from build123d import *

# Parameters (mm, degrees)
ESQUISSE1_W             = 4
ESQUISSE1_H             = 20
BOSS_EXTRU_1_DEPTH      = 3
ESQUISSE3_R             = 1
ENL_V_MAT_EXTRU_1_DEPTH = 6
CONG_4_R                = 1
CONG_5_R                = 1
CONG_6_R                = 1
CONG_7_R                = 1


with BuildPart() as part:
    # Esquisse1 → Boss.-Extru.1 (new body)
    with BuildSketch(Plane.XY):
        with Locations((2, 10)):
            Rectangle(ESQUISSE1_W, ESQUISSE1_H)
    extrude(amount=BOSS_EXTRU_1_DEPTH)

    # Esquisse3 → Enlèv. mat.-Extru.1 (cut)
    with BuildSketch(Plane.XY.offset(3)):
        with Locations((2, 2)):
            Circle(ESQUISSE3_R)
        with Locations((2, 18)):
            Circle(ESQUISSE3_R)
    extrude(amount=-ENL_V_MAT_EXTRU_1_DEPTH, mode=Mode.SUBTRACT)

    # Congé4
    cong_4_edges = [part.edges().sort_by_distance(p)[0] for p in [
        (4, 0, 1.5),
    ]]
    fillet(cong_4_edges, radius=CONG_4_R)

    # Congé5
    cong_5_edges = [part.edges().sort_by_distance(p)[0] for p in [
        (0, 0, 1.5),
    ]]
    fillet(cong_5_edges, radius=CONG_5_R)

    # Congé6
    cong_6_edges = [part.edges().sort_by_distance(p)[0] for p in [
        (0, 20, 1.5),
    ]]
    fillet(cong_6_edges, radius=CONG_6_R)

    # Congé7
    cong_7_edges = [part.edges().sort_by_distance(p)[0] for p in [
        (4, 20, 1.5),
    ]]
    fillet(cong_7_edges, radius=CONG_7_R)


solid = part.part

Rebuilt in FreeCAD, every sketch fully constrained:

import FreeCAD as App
import Part
import Sketcher


def edges_at(feature, points):
    """Names of the edges that pass closest to the given points."""
    edges = feature.Shape.Edges
    near = lambda p: min(range(len(edges)), key=lambda i: edges[i].distToShape(Part.Vertex(*p))[0])
    return sorted({f"Edge{near(p) + 1}" for p in points})

doc = App.newDocument("Part")
params = doc.addObject("Spreadsheet::Sheet", "Params")
for row, (alias, value) in enumerate([
    ("sketch1_width", "4 mm"),
    ("sketch1_height", "20 mm"),
    ("pad1_length", "3 mm"),
    ("sketch2_diameter", "2 mm"),
    ("pocket1_length", "6 mm"),
    ("fillet_radius", "1 mm"),
    ("fillet2_radius", "1 mm"),
    ("fillet3_radius", "1 mm"),
    ("fillet4_radius", "1 mm"),
], start=1):
    params.set(f"A{row}", alias)
    params.set(f"B{row}", "=" + value)
    params.setAlias(f"B{row}", alias)

body = doc.addObject("PartDesign::Body", "Body")

sketch1 = doc.addObject("Sketcher::SketchObject", "Sketch")
body.addObject(sketch1)
sketch1.AttachmentSupport = (doc.XY_Plane, [""])
sketch1.MapMode = "FlatFace"
sketch1.addGeometry([
    Part.LineSegment(App.Vector(0, 20, 0), App.Vector(0, 0, 0)),
    Part.LineSegment(App.Vector(0, 0, 0), App.Vector(4, 0, 0)),
    Part.LineSegment(App.Vector(4, 0, 0), App.Vector(4, 20, 0)),
    Part.LineSegment(App.Vector(4, 20, 0), App.Vector(0, 20, 0)),
], False)
sketch1.addConstraint([
    Sketcher.Constraint("Coincident", 0, 2, 1, 1),
    Sketcher.Constraint("Coincident", 1, 2, 2, 1),
    Sketcher.Constraint("Coincident", 2, 2, 3, 1),
    Sketcher.Constraint("Coincident", 3, 2, 0, 1),
    Sketcher.Constraint("Vertical", 0),
    Sketcher.Constraint("Horizontal", 1),
    Sketcher.Constraint("Vertical", 2),
    Sketcher.Constraint("Horizontal", 3),
    Sketcher.Constraint("Coincident", 0, 2, -1, 1),
    Sketcher.Constraint("DistanceX", 1, 1, 1, 2, 4.0),
    Sketcher.Constraint("DistanceY", 0, 2, 0, 1, 20.0),
])
sketch1.setExpression("Constraints[9]", "Params.sketch1_width")
sketch1.setExpression("Constraints[10]", "Params.sketch1_height")
pad1 = doc.addObject("PartDesign::Pad", "Pad")
body.addObject(pad1)
pad1.Profile = sketch1
pad1.setExpression("Length", "Params.pad1_length")

sketch2 = doc.addObject("Sketcher::SketchObject", "Sketch001")
body.addObject(sketch2)
sketch2.AttachmentSupport = (doc.XY_Plane, [""])
sketch2.MapMode = "FlatFace"
sketch2.AttachmentOffset = App.Placement(App.Vector(0, 0, 3), App.Rotation())
sketch2.addGeometry([
    Part.Circle(App.Vector(2, 2, 0), App.Vector(0, 0, 1), 1),
    Part.Circle(App.Vector(2, 18, 0), App.Vector(0, 0, 1), 1),
], False)
sketch2.addConstraint([
    Sketcher.Constraint("Equal", 0, 1),
    Sketcher.Constraint("Vertical", 0, 3, 1, 3),
    Sketcher.Constraint("Diameter", 0, 2.0),
    Sketcher.Constraint("DistanceX", -1, 1, 0, 3, 2.0),
    Sketcher.Constraint("DistanceY", -1, 1, 0, 3, 2.0),
    Sketcher.Constraint("DistanceY", -1, 1, 1, 3, 18.0),
])
sketch2.setExpression("Constraints[2]", "Params.sketch2_diameter")
pocket1 = doc.addObject("PartDesign::Pocket", "Pocket")
body.addObject(pocket1)
pocket1.Profile = sketch2
pocket1.setExpression("Length", "Params.pocket1_length")
doc.recompute()

fillet = doc.addObject("PartDesign::Fillet", "Fillet")
body.addObject(fillet)
fillet.Base = (pocket1, edges_at(pocket1, [(4, 0, 1.5)]))
fillet.setExpression("Radius", "Params.fillet_radius")
doc.recompute()

fillet2 = doc.addObject("PartDesign::Fillet", "Fillet001")
body.addObject(fillet2)
fillet2.Base = (fillet, edges_at(fillet, [(0, 0, 1.5)]))
fillet2.setExpression("Radius", "Params.fillet2_radius")
doc.recompute()

fillet3 = doc.addObject("PartDesign::Fillet", "Fillet002")
body.addObject(fillet3)
fillet3.Base = (fillet2, edges_at(fillet2, [(0, 20, 1.5)]))
fillet3.setExpression("Radius", "Params.fillet3_radius")
doc.recompute()

fillet4 = doc.addObject("PartDesign::Fillet", "Fillet003")
body.addObject(fillet4)
fillet4.Base = (fillet3, edges_at(fillet3, [(4, 20, 1.5)]))
fillet4.setExpression("Radius", "Params.fillet4_radius")

doc.recompute()
